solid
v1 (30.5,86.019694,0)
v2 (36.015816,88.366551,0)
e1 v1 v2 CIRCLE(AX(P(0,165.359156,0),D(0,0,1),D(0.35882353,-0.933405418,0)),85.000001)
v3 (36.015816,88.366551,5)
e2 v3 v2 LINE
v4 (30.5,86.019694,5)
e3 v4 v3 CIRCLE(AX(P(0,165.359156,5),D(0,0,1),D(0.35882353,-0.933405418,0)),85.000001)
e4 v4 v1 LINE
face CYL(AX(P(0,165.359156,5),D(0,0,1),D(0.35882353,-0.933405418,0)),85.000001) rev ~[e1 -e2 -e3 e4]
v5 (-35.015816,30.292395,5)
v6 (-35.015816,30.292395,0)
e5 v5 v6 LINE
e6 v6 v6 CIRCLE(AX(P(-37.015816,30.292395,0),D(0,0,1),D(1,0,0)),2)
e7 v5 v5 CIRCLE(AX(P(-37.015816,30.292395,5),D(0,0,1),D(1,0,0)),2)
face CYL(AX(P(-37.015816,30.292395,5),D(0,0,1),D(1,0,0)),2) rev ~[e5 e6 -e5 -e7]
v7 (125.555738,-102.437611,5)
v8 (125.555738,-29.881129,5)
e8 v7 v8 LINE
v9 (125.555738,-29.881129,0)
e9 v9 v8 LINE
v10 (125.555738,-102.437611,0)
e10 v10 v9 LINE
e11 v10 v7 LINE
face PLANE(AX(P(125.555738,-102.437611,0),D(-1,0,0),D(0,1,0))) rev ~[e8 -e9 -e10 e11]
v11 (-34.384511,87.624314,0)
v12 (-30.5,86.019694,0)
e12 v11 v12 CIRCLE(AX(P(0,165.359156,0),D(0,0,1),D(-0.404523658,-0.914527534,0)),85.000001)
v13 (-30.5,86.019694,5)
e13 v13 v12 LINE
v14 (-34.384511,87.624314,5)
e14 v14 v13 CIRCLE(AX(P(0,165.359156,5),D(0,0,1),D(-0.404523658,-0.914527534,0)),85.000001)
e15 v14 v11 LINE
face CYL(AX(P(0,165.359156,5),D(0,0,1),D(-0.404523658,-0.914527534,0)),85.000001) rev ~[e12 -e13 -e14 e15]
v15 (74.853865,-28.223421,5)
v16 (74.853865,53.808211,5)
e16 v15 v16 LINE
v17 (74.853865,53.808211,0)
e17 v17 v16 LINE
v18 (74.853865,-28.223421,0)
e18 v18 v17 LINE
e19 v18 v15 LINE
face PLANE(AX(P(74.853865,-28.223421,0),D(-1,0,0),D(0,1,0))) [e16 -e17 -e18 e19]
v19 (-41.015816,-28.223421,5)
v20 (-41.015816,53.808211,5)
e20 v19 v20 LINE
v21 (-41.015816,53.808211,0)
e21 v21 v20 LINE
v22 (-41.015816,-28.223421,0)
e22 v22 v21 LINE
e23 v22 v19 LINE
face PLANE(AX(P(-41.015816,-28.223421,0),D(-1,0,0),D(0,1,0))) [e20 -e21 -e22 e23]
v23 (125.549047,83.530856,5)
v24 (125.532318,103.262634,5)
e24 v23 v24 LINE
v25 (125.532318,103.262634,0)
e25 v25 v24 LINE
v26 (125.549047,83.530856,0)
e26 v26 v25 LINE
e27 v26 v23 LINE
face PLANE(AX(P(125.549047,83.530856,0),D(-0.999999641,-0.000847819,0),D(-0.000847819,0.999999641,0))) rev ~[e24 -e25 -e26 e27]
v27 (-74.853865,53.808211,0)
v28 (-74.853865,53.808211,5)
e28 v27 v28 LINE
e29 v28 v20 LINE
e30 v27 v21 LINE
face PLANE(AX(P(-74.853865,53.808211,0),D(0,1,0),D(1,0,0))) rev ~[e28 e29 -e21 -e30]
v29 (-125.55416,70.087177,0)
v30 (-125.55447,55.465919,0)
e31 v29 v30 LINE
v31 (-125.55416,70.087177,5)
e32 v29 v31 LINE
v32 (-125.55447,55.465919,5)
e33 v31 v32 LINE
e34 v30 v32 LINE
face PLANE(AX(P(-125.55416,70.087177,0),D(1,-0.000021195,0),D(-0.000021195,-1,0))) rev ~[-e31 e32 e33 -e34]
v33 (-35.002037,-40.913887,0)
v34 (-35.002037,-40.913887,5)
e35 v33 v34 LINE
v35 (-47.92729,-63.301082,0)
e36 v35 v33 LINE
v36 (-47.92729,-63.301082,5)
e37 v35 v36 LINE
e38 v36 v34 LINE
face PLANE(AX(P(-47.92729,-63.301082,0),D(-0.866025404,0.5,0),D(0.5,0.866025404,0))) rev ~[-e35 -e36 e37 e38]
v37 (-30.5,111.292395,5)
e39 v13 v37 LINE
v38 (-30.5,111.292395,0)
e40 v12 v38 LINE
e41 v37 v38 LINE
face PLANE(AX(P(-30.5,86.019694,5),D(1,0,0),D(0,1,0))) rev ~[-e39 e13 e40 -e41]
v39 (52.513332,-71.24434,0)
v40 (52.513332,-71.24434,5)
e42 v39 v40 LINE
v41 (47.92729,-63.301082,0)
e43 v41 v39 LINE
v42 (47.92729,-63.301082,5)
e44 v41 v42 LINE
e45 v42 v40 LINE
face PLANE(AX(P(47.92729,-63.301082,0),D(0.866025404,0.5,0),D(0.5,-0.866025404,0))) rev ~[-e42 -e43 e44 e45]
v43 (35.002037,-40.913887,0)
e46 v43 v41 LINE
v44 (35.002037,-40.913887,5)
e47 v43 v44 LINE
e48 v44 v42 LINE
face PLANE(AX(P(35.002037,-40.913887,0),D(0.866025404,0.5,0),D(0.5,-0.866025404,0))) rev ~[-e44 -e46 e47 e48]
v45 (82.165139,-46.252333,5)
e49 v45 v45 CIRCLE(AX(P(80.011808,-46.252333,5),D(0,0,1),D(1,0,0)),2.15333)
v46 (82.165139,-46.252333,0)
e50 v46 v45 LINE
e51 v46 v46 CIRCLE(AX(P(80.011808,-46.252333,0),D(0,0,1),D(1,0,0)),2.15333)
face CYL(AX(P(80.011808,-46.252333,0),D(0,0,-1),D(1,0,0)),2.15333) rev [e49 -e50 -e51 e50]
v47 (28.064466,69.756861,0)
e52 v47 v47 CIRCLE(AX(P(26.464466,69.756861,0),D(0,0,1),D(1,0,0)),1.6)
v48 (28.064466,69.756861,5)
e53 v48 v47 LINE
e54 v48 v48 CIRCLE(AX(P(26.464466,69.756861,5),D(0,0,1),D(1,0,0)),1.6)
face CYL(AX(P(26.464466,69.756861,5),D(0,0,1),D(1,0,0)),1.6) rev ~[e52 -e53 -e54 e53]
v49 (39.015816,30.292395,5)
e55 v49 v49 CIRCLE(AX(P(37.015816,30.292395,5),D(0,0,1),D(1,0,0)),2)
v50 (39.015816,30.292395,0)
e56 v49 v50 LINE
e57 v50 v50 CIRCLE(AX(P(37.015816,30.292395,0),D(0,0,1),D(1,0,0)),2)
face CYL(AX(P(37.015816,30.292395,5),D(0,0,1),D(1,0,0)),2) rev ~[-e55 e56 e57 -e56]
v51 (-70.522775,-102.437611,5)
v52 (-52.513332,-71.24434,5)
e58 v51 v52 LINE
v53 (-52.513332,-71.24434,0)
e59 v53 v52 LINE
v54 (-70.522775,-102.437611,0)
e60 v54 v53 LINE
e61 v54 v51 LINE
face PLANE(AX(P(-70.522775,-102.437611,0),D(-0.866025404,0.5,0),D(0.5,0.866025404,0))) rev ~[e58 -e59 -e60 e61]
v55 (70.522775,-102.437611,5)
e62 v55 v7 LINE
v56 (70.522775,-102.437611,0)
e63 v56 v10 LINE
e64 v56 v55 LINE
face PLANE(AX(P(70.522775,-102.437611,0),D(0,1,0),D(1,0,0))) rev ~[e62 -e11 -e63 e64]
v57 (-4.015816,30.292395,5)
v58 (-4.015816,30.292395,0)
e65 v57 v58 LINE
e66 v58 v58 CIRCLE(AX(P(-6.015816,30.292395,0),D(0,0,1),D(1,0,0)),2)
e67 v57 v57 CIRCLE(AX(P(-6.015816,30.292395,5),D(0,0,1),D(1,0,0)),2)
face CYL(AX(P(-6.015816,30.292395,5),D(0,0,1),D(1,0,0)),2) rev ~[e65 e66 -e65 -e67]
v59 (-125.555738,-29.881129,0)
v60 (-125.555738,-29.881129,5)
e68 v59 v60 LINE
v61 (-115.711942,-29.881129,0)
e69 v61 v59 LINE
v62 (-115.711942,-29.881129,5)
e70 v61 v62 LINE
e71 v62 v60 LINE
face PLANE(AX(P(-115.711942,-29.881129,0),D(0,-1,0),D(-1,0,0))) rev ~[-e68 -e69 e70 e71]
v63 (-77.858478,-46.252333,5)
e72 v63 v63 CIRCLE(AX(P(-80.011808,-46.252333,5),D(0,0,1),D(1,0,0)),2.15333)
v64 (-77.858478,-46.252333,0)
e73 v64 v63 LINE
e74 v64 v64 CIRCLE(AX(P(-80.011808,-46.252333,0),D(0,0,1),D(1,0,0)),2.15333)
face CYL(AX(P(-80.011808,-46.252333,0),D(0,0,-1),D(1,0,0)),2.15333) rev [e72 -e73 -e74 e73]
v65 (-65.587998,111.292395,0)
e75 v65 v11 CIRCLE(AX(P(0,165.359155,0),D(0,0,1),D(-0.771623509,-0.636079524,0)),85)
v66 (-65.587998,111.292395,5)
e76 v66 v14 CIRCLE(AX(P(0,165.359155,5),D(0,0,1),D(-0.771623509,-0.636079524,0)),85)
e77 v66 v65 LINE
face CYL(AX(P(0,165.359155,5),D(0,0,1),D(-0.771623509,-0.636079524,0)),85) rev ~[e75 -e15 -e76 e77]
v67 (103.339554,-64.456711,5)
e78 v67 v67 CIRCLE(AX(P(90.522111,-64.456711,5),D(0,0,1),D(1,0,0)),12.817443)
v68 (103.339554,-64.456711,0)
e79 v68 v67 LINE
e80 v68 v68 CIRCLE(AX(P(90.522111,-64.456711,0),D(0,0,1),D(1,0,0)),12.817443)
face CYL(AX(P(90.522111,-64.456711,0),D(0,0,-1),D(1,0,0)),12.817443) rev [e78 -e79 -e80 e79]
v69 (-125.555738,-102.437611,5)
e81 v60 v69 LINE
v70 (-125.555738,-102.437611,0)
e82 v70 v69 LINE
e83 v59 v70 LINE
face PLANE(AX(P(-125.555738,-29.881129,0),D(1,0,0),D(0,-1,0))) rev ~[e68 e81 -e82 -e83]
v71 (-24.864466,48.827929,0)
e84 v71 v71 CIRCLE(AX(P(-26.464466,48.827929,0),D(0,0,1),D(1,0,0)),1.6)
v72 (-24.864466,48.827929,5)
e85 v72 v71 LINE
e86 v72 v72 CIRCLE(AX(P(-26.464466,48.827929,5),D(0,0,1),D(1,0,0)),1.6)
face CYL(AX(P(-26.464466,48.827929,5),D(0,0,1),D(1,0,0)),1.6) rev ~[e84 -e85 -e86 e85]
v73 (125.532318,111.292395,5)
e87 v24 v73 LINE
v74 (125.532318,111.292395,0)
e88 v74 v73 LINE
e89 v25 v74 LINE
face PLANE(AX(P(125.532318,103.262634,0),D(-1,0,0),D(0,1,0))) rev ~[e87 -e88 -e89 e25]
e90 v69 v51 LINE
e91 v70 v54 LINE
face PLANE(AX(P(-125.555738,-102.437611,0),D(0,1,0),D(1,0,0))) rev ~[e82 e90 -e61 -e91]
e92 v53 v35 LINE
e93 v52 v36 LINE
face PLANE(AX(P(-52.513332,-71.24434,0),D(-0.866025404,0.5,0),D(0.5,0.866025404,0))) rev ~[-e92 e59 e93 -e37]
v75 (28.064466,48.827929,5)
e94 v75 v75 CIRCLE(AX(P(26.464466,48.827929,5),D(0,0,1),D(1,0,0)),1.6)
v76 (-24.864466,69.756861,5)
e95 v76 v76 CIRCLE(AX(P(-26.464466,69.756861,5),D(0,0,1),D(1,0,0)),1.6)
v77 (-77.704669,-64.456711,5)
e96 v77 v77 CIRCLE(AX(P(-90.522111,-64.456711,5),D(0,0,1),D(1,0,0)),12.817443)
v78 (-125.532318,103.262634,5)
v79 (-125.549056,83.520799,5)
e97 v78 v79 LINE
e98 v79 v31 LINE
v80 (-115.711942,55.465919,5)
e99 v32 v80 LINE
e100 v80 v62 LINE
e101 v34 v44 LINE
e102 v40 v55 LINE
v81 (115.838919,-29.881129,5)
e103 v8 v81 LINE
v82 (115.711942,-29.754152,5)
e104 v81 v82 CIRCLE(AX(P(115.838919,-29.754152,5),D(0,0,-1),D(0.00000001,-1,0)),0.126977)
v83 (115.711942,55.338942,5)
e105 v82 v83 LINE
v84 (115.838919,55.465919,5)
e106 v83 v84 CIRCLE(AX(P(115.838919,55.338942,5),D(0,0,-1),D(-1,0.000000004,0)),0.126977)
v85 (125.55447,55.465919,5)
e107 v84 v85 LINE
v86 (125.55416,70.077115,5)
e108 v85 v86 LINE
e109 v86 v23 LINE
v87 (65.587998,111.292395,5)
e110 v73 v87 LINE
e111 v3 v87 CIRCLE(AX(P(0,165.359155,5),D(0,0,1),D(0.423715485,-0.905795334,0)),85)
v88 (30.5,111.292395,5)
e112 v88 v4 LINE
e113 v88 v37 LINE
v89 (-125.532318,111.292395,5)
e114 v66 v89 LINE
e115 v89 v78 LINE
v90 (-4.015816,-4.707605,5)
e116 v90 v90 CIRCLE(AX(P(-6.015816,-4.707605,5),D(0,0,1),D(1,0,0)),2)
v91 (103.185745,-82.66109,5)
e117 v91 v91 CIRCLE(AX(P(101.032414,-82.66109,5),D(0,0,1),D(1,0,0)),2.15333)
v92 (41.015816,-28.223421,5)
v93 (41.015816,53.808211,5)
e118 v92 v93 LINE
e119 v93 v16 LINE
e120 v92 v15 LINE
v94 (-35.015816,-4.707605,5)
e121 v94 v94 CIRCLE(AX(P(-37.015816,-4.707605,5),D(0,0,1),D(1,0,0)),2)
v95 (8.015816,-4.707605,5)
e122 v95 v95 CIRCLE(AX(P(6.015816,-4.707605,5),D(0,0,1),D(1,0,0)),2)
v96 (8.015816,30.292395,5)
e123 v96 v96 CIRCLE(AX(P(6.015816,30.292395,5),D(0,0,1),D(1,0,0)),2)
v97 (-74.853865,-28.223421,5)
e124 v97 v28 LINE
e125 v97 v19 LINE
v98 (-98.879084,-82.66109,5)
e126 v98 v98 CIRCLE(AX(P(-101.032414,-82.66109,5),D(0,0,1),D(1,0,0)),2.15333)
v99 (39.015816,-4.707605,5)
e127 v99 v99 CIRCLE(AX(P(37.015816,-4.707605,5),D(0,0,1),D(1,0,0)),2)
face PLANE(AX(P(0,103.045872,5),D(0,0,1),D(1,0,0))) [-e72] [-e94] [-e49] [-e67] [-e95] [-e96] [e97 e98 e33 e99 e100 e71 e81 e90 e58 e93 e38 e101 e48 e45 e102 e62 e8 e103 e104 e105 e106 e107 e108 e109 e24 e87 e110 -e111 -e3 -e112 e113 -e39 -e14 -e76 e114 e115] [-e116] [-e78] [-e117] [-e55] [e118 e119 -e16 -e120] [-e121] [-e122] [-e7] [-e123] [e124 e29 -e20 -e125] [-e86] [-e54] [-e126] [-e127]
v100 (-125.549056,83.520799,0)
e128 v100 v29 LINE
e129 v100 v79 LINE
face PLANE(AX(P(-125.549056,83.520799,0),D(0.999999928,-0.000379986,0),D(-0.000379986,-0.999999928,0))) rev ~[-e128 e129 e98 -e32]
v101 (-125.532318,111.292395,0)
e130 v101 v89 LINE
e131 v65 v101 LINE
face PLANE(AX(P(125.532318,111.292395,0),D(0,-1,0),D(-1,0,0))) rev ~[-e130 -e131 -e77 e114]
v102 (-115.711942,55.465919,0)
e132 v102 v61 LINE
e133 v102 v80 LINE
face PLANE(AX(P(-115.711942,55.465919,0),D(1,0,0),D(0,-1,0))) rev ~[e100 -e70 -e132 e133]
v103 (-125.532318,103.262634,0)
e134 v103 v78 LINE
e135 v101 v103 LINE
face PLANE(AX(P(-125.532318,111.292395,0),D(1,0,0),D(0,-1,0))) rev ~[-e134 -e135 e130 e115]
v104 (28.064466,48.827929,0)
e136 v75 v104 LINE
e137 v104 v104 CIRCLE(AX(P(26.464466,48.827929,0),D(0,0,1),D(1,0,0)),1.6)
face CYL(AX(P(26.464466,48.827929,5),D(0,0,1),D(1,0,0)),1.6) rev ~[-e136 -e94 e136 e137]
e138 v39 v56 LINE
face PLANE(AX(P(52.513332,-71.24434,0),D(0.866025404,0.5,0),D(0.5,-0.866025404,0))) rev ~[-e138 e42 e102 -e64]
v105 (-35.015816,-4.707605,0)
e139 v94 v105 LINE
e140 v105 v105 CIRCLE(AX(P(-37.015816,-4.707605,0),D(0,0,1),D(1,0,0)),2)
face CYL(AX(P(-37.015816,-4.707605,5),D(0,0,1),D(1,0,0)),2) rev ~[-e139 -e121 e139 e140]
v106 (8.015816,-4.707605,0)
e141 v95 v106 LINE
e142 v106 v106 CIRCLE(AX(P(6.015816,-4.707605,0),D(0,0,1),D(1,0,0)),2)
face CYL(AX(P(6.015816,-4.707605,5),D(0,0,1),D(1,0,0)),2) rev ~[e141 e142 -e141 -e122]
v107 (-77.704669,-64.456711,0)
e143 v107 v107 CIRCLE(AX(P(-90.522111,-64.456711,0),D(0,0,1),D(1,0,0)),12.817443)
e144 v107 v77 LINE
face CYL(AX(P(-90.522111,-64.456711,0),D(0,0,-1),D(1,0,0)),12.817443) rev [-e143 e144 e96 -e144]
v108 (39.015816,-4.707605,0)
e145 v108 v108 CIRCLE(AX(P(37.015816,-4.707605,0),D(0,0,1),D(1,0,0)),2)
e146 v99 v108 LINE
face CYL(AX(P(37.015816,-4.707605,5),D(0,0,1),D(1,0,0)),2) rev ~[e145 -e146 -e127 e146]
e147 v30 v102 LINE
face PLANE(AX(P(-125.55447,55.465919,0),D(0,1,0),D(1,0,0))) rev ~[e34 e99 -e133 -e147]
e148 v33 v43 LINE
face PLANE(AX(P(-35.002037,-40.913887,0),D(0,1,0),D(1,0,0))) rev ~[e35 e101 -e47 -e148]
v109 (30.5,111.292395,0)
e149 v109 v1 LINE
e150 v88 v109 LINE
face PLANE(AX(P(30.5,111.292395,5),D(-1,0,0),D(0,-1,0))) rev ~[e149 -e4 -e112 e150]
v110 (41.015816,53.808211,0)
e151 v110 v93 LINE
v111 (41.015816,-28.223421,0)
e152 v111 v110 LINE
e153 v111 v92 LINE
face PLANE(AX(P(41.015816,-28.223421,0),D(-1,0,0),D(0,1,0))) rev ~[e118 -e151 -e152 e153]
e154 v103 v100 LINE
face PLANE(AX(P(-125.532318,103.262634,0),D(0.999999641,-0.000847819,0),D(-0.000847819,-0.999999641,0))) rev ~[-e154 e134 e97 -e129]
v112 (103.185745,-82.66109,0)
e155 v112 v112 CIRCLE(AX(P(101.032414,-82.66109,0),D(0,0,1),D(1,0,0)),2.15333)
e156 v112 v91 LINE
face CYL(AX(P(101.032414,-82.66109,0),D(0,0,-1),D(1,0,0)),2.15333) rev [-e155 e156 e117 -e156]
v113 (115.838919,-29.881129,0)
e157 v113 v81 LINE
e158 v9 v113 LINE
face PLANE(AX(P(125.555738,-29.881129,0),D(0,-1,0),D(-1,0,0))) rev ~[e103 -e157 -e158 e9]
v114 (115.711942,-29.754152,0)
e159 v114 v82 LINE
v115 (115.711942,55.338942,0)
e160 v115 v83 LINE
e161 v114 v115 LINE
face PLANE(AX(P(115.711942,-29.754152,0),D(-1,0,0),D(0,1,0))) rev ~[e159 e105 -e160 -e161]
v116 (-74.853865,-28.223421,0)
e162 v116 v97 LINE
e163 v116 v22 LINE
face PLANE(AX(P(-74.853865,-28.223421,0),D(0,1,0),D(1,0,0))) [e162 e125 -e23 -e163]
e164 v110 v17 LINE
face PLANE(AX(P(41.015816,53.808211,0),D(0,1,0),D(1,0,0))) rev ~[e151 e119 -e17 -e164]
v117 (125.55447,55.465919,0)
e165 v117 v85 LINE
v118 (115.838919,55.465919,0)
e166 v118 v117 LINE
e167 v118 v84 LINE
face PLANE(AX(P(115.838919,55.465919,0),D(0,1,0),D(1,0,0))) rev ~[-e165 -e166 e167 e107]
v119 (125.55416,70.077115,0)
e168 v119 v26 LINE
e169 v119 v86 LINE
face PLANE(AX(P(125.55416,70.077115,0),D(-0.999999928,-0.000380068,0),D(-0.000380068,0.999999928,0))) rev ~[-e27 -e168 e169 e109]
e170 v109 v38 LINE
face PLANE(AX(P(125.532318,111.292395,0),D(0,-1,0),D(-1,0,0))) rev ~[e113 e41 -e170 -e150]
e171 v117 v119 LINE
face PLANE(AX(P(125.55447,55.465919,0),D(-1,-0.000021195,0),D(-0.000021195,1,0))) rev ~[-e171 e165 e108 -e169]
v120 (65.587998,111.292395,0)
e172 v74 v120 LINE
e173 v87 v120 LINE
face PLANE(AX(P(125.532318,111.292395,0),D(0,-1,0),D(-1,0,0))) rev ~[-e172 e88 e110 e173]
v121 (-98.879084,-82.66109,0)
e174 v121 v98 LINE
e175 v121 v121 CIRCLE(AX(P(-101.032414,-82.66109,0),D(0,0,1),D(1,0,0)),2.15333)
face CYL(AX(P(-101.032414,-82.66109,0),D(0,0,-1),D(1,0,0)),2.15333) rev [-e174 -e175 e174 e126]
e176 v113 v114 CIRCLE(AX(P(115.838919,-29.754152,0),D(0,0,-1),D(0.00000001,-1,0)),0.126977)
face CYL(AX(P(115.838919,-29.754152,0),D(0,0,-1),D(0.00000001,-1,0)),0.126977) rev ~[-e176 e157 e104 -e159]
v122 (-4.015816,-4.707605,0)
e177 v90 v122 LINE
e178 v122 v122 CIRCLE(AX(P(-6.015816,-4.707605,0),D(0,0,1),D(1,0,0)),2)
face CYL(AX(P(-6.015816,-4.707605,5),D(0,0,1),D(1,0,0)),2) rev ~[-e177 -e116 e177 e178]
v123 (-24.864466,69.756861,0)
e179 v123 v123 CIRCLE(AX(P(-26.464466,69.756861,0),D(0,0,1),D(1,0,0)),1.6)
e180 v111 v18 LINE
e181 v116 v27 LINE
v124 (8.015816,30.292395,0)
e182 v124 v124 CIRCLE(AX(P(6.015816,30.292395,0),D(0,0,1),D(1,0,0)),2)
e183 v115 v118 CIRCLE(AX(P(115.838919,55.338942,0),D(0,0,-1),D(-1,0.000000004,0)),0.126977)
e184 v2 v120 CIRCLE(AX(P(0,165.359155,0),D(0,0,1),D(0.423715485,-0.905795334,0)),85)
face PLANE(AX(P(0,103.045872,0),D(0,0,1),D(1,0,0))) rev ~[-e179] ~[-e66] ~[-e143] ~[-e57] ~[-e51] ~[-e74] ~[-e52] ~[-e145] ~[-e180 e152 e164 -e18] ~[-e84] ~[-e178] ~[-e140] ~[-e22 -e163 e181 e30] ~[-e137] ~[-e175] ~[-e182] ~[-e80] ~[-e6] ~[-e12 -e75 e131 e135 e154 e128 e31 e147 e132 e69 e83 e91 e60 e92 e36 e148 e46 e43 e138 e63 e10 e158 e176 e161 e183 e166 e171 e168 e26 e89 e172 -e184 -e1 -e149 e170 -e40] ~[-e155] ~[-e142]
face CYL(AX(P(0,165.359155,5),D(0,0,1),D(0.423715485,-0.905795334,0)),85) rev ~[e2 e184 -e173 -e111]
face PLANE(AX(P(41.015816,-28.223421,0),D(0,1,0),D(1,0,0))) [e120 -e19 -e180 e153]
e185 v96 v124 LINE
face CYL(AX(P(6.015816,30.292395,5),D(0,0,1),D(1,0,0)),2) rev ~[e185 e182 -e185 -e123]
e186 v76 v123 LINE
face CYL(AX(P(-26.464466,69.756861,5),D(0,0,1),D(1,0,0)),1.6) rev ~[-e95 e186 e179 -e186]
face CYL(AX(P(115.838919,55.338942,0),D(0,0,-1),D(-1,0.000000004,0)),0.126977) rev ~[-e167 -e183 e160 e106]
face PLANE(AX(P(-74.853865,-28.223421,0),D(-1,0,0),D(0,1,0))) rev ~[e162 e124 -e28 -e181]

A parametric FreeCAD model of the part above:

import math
import FreeCAD as App
import Part
import Sketcher
Q = App.Units.Quantity

doc = App.newDocument("Part")
body = doc.addObject("PartDesign::Body", "Body")

# Sketch on XY plane
sketch1 = body.newObject("Sketcher::SketchObject", "Sketch")
sketch1.AttachmentSupport = (doc.getObject("XY_Plane"), [""])
sketch1.MapMode = "FlatFace"
sketch1.addGeometry(Part.LineSegment(App.Vector(125.532318, 103.262634, 0), App.Vector(36.253298, 103.262634, 0)), False)
sketch1.addGeometry(Part.ArcOfCircle(Part.Circle(App.Vector(0, 165.359155, 0), App.Vector(0, 0, 1), 71.904655), math.radians(-120.277311), math.radians(-59.722689)), False)
sketch1.addGeometry(Part.LineSegment(App.Vector(-36.253298, 103.262634, 0), App.Vector(-125.532318, 103.262634, 0)), False)
sketch1.addGeometry(Part.LineSegment(App.Vector(-125.532318, 103.262634, 0), App.Vector(-125.549056, 83.520799, 0)), False)
sketch1.addGeometry(Part.LineSegment(App.Vector(-125.549056, 83.520799, 0), App.Vector(-125.55416, 70.087177, 0)), False)
sketch1.addGeometry(Part.LineSegment(App.Vector(-125.55416, 70.087177, 0), App.Vector(-125.55447, 55.465919, 0)), False)
sketch1.addGeometry(Part.LineSegment(App.Vector(-125.55447, 55.465919, 0), App.Vector(-115.711942, 55.465919, 0)), False)
sketch1.addGeometry(Part.LineSegment(App.Vector(-115.711942, 55.465919, 0), App.Vector(-115.711942, -29.881129, 0)), False)
sketch1.addGeometry(Part.LineSegment(App.Vector(-115.711942, -29.881129, 0), App.Vector(-125.555738, -29.881129, 0)), False)
sketch1.addGeometry(Part.LineSegment(App.Vector(-125.555738, -29.881129, 0), App.Vector(-125.555738, -102.437611, 0)), False)
sketch1.addGeometry(Part.LineSegment(App.Vector(-125.555738, -102.437611, 0), App.Vector(-70.522775, -102.437611, 0)), False)
sketch1.addGeometry(Part.LineSegment(App.Vector(-70.522775, -102.437611, 0), App.Vector(-52.513332, -71.24434, 0)), False)
sketch1.addGeometry(Part.LineSegment(App.Vector(-52.513332, -71.24434, 0), App.Vector(-47.92729, -63.301082, 0)), False)
sketch1.addGeometry(Part.LineSegment(App.Vector(-47.92729, -63.301082, 0), App.Vector(-35.002037, -40.913887, 0)), False)
sketch1.addGeometry(Part.LineSegment(App.Vector(-35.002037, -40.913887, 0), App.Vector(35.002037, -40.913887, 0)), False)
sketch1.addGeometry(Part.LineSegment(App.Vector(35.002037, -40.913887, 0), App.Vector(47.92729, -63.301082, 0)), False)
sketch1.addGeometry(Part.LineSegment(App.Vector(47.92729, -63.301082, 0), App.Vector(52.513332, -71.24434, 0)), False)
sketch1.addGeometry(Part.LineSegment(App.Vector(52.513332, -71.24434, 0), App.Vector(70.522775, -102.437611, 0)), False)
sketch1.addGeometry(Part.LineSegment(App.Vector(70.522775, -102.437611, 0), App.Vector(125.555738, -102.437611, 0)), False)
sketch1.addGeometry(Part.LineSegment(App.Vector(125.555738, -102.437611, 0), App.Vector(125.555738, -29.881129, 0)), False)
sketch1.addGeometry(Part.LineSegment(App.Vector(125.555738, -29.881129, 0), App.Vector(115.838919, -29.881129, 0)), False)
sketch1.addGeometry(Part.ArcOfCircle(Part.Circle(App.Vector(115.838919, -29.754152, 0), App.Vector(0, 0, 1), 0.126977), math.radians(180), math.radians(270)), False)
sketch1.addGeometry(Part.LineSegment(App.Vector(115.711942, -29.754152, 0), App.Vector(115.711942, 55.338942, 0)), False)
sketch1.addGeometry(Part.ArcOfCircle(Part.Circle(App.Vector(115.838919, 55.338942, 0), App.Vector(0, 0, 1), 0.126977), math.radians(90), math.radians(180)), False)
sketch1.addGeometry(Part.LineSegment(App.Vector(115.838919, 55.465919, 0), App.Vector(125.55447, 55.465919, 0)), False)
sketch1.addGeometry(Part.LineSegment(App.Vector(125.55447, 55.465919, 0), App.Vector(125.55416, 70.077115, 0)), False)
sketch1.addGeometry(Part.LineSegment(App.Vector(125.55416, 70.077115, 0), App.Vector(125.549047, 83.530856, 0)), False)
sketch1.addGeometry(Part.LineSegment(App.Vector(125.549047, 83.530856, 0), App.Vector(125.532318, 103.262634, 0)), False)
sketch1.addGeometry(Part.Circle(App.Vector(-101.032414, -82.66109, 0), App.Vector(0, 0, 1), 2.15333), False)
sketch1.addGeometry(Part.Circle(App.Vector(-90.522111, -64.456711, 0), App.Vector(0, 0, 1), 12.817443), False)
sketch1.addGeometry(Part.Circle(App.Vector(-80.011808, -46.252333, 0), App.Vector(0, 0, 1), 2.15333), False)
sketch1.addGeometry(Part.Circle(App.Vector(101.032414, -82.66109, 0), App.Vector(0, 0, 1), 2.15333), False)
sketch1.addGeometry(Part.Circle(App.Vector(90.522111, -64.456711, 0), App.Vector(0, 0, 1), 12.817443), False)
sketch1.addGeometry(Part.Circle(App.Vector(80.011808, -46.252333, 0), App.Vector(0, 0, 1), 2.15333), False)
sketch1.addGeometry(Part.LineSegment(App.Vector(-41.015816, -28.223421, 0), App.Vector(-74.853865, -28.223421, 0)), False)
sketch1.addGeometry(Part.LineSegment(App.Vector(-74.853865, -28.223421, 0), App.Vector(-74.853865, 53.808211, 0)), False)
sketch1.addGeometry(Part.LineSegment(App.Vector(-74.853865, 53.808211, 0), App.Vector(-41.015816, 53.808211, 0)), False)
sketch1.addGeometry(Part.LineSegment(App.Vector(-41.015816, 53.808211, 0), App.Vector(-41.015816, -28.223421, 0)), False)
sketch1.addGeometry(Part.LineSegment(App.Vector(74.853865, -28.223421, 0), App.Vector(41.015816, -28.223421, 0)), False)
sketch1.addGeometry(Part.LineSegment(App.Vector(41.015816, -28.223421, 0), App.Vector(41.015816, 53.808211, 0)), False)
sketch1.addGeometry(Part.LineSegment(App.Vector(41.015816, 53.808211, 0), App.Vector(74.853865, 53.808211, 0)), False)
sketch1.addGeometry(Part.LineSegment(App.Vector(74.853865, 53.808211, 0), App.Vector(74.853865, -28.223421, 0)), False)
sketch1.addConstraint(Sketcher.Constraint("Coincident", 0, 2, 1, 2))
sketch1.addConstraint(Sketcher.Constraint("Coincident", 1, 1, 2, 1))
sketch1.addConstraint(Sketcher.Constraint("Coincident", 2, 2, 3, 1))
sketch1.addConstraint(Sketcher.Constraint("Coincident", 3, 2, 4, 1))
sketch1.addConstraint(Sketcher.Constraint("Coincident", 4, 2, 5, 1))
sketch1.addConstraint(Sketcher.Constraint("Coincident", 5, 2, 6, 1))
sketch1.addConstraint(Sketcher.Constraint("Coincident", 6, 2, 7, 1))
sketch1.addConstraint(Sketcher.Constraint("Coincident", 7, 2, 8, 1))
sketch1.addConstraint(Sketcher.Constraint("Coincident", 8, 2, 9, 1))
sketch1.addConstraint(Sketcher.Constraint("Coincident", 9, 2, 10, 1))
sketch1.addConstraint(Sketcher.Constraint("Coincident", 10, 2, 11, 1))
sketch1.addConstraint(Sketcher.Constraint("Coincident", 11, 2, 12, 1))
sketch1.addConstraint(Sketcher.Constraint("Coincident", 12, 2, 13, 1))
sketch1.addConstraint(Sketcher.Constraint("Coincident", 13, 2, 14, 1))
sketch1.addConstraint(Sketcher.Constraint("Coincident", 14, 2, 15, 1))
sketch1.addConstraint(Sketcher.Constraint("Coincident", 15, 2, 16, 1))
sketch1.addConstraint(Sketcher.Constraint("Coincident", 16, 2, 17, 1))
sketch1.addConstraint(Sketcher.Constraint("Coincident", 17, 2, 18, 1))
sketch1.addConstraint(Sketcher.Constraint("Coincident", 18, 2, 19, 1))
sketch1.addConstraint(Sketcher.Constraint("Coincident", 19, 2, 20, 1))
sketch1.addConstraint(Sketcher.Constraint("Tangent", 20, 2, 21, 2))
sketch1.addConstraint(Sketcher.Constraint("Tangent", 21, 1, 22, 1))
sketch1.addConstraint(Sketcher.Constraint("Tangent", 22, 2, 23, 2))
sketch1.addConstraint(Sketcher.Constraint("Tangent", 23, 1, 24, 1))
sketch1.addConstraint(Sketcher.Constraint("Coincident", 24, 2, 25, 1))
sketch1.addConstraint(Sketcher.Constraint("Coincident", 25, 2, 26, 1))
sketch1.addConstraint(Sketcher.Constraint("Coincident", 26, 2, 27, 1))
sketch1.addConstraint(Sketcher.Constraint("Coincident", 27, 2, 0, 1))
sketch1.addConstraint(Sketcher.Constraint("Coincident", 34, 2, 35, 1))
sketch1.addConstraint(Sketcher.Constraint("Coincident", 35, 2, 36, 1))
sketch1.addConstraint(Sketcher.Constraint("Coincident", 36, 2, 37, 1))
sketch1.addConstraint(Sketcher.Constraint("Coincident", 37, 2, 34, 1))
sketch1.addConstraint(Sketcher.Constraint("Coincident", 38, 2, 39, 1))
sketch1.addConstraint(Sketcher.Constraint("Coincident", 39, 2, 40, 1))
sketch1.addConstraint(Sketcher.Constraint("Coincident", 40, 2, 41, 1))
sketch1.addConstraint(Sketcher.Constraint("Coincident", 41, 2, 38, 1))
sketch1.addConstraint(Sketcher.Constraint("Horizontal", 0))
sketch1.addConstraint(Sketcher.Constraint("Horizontal", 2))
sketch1.addConstraint(Sketcher.Constraint("Horizontal", 6))
sketch1.addConstraint(Sketcher.Constraint("Vertical", 7))
sketch1.addConstraint(Sketcher.Constraint("Horizontal", 8))
sketch1.addConstraint(Sketcher.Constraint("Vertical", 9))
sketch1.addConstraint(Sketcher.Constraint("Horizontal", 10))
sketch1.addConstraint(Sketcher.Constraint("Horizontal", 14))
sketch1.addConstraint(Sketcher.Constraint("Horizontal", 18))
sketch1.addConstraint(Sketcher.Constraint("Vertical", 19))
sketch1.addConstraint(Sketcher.Constraint("Horizontal", 20))
sketch1.addConstraint(Sketcher.Constraint("Vertical", 22))
sketch1.addConstraint(Sketcher.Constraint("Horizontal", 24))
sketch1.addConstraint(Sketcher.Constraint("Horizontal", 34))
sketch1.addConstraint(Sketcher.Constraint("Vertical", 35))
sketch1.addConstraint(Sketcher.Constraint("Horizontal", 36))
sketch1.addConstraint(Sketcher.Constraint("Vertical", 37))
sketch1.addConstraint(Sketcher.Constraint("Horizontal", 38))
sketch1.addConstraint(Sketcher.Constraint("Vertical", 39))
sketch1.addConstraint(Sketcher.Constraint("Horizontal", 40))
sketch1.addConstraint(Sketcher.Constraint("Vertical", 41))
sketch1.addConstraint(Sketcher.Constraint("Equal", 21, 23))
sketch1.addConstraint(Sketcher.Constraint("Equal", 28, 30))
sketch1.addConstraint(Sketcher.Constraint("Equal", 30, 31))
sketch1.addConstraint(Sketcher.Constraint("Equal", 29, 32))
sketch1.addConstraint(Sketcher.Constraint("Equal", 31, 33))
sketch1.addConstraint(Sketcher.Constraint("Symmetric", 28, 3, 31, 3, -2))
sketch1.addConstraint(Sketcher.Constraint("Symmetric", 29, 3, 32, 3, -2))
sketch1.addConstraint(Sketcher.Constraint("Symmetric", 30, 3, 33, 3, -2))
sketch1.addConstraint(Sketcher.Constraint("Symmetric", 0, 2, 1, 1, -2))
sketch1.addConstraint(Sketcher.Constraint("Symmetric", 12, 2, 15, 2, -2))
sketch1.addConstraint(Sketcher.Constraint("Symmetric", 11, 2, 16, 2, -2))
sketch1.addConstraint(Sketcher.Constraint("Symmetric", 10, 2, 17, 2, -2))
sketch1.addConstraint(Sketcher.Constraint("Symmetric", 8, 2, 19, 2, -2))
sketch1.addConstraint(Sketcher.Constraint("Symmetric", 5, 2, 24, 2, -2))
sketch1.addConstraint(Sketcher.Constraint("Symmetric", 37, 2, 38, 2, -2))
sketch1.addConstraint(Sketcher.Constraint("Symmetric", 35, 2, 40, 2, -2))
sketch1.addConstraint(Sketcher.Constraint("Parallel", 11, 12))
sketch1.addConstraint(Sketcher.Constraint("Parallel", 12, 13))
sketch1.addConstraint(Sketcher.Constraint("Parallel", 15, 16))
sketch1.addConstraint(Sketcher.Constraint("Equal", 0, 2))
sketch1.addConstraint(Sketcher.Constraint("Angle", 11, Q("60 deg")))
sketch1.addConstraint(Sketcher.Constraint("Diameter", 28, 4.306661))
sketch1.addConstraint(Sketcher.Constraint("Diameter", 29, 25.634885))
sketch1.addConstraint(Sketcher.Constraint("Radius", 1, 71.904655))
sketch1.addConstraint(Sketcher.Constraint("Radius", 21, 0.126977))
sketch1.addConstraint(Sketcher.Constraint("DistanceX", 0, 2, 0, 1, 89.27902))
sketch1.addConstraint(Sketcher.Constraint("DistanceX", 6, 1, 6, 2, 9.842528))
sketch1.addConstraint(Sketcher.Constraint("DistanceX", 20, 2, 20, 1, 9.716819))
sketch1.addConstraint(Sketcher.Constraint("DistanceX", 24, 1, 24, 2, 9.715551))
sketch1.addConstraint(Sketcher.Constraint("DistanceX", 34, 2, 34, 1, 33.838048))
sketch1.addConstraint(Sketcher.Constraint("DistanceY", 7, 2, 7, 1, 85.347048))
sketch1.addConstraint(Sketcher.Constraint("DistanceY", 9, 2, 9, 1, 72.556482))
sketch1.addConstraint(Sketcher.Constraint("DistanceY", -1, 1, 3, 2, 83.520799))
sketch1.addConstraint(Sketcher.Constraint("DistanceY", 9, 2, 29, 3, 37.9809))
sketch1.addConstraint(Sketcher.Constraint("DistanceX", 23, 1, 27, 2, 9.693399))
sketch1.addConstraint(Sketcher.Constraint("Distance", 3, 19.741842))
sketch1.addConstraint(Sketcher.Constraint("DistanceX", 10, 1, 10, 2, 55.032962))
sketch1.addConstraint(Sketcher.Constraint("DistanceX", 14, 1, 14, 2, 70.004073))
sketch1.addConstraint(Sketcher.Constraint("DistanceY", 35, 1, 35, 2, 82.031632))
sketch1.addConstraint(Sketcher.Constraint("DistanceX", -1, 1, 21, 3, 115.838919))
sketch1.addConstraint(Sketcher.Constraint("DistanceY", 21, 3, -1, 1, 29.754152))
sketch1.addConstraint(Sketcher.Constraint("DistanceY", 28, 3, -1, 1, 82.66109))
sketch1.addConstraint(Sketcher.Constraint("DistanceX", 29, 3, -1, 1, 90.522111))
sketch1.addConstraint(Sketcher.Constraint("DistanceX", 30, 3, -1, 1, 80.011808))
sketch1.addConstraint(Sketcher.Constraint("DistanceX", 4, 2, -1, 1, 125.55416))
sketch1.addConstraint(Sketcher.Constraint("DistanceY", 11, 2, -1, 1, 71.24434))
sketch1.addConstraint(Sketcher.Constraint("DistanceX", 12, 2, -1, 1, 47.92729))
sketch1.addConstraint(Sketcher.Constraint("DistanceX", -1, 1, 25, 2, 125.55416))
sketch1.addConstraint(Sketcher.Constraint("DistanceY", 34, 2, -1, 1, 28.223421))
sketch1.addConstraint(Sketcher.Constraint("DistanceY", 29, 3, 30, 3, 18.204379))
sketch1.addConstraint(Sketcher.Constraint("DistanceX", 28, 3, 31, 3, 202.064828))
sketch1.addConstraint(Sketcher.Constraint("DistanceY", 30, 3, 4, 2, 116.33951))
sketch1.addConstraint(Sketcher.Constraint("DistanceY", 25, 2, 0, 2, 33.185519))
sketch1.addConstraint(Sketcher.Constraint("DistanceY", 25, 2, 26, 2, 13.453741))
sketch1.addConstraint(Sketcher.Constraint("DistanceX", 23, 1, 26, 2, 9.710128))
sketch1.addConstraint(Sketcher.Constraint("DistanceX", 3, 2, 35, 2, 50.695191))
sketch1.addConstraint(Sketcher.Constraint("DistanceX", 36, 2, 1, 1, 4.762518))
pad1 = body.newObject("PartDesign::Pad", "Pad")
pad1.Profile = sketch1
pad1.Length = 5

# Sketch on XY plane
sketch2 = body.newObject("Sketcher::SketchObject", "Sketch001")
sketch2.AttachmentSupport = (doc.getObject("XY_Plane"), [""])
sketch2.MapMode = "FlatFace"
sketch2.AttachmentOffset = App.Placement(App.Vector(0, 0, 5), App.Rotation())
sketch2.addGeometry(Part.Circle(App.Vector(0, 135.292395, 0), App.Vector(0, 0, 1), 62), False)
sketch2.addConstraint(Sketcher.Constraint("PointOnObject", 0, 3, -2))
sketch2.addConstraint(Sketcher.Constraint("Diameter", 0, 124.0))
sketch2.addConstraint(Sketcher.Constraint("DistanceY", -1, 1, 0, 3, 135.292395))
pocket1 = body.newObject("PartDesign::Pocket", "Pocket")
pocket1.Profile = sketch2
pocket1.Length = 5

# Sketch on XY plane
sketch3 = body.newObject("Sketcher::SketchObject", "Sketch002")
sketch3.AttachmentSupport = (doc.getObject("XY_Plane"), [""])
sketch3.MapMode = "FlatFace"
sketch3.AttachmentOffset = App.Placement(App.Vector(0, 0, 5), App.Rotation())
sketch3.addGeometry(Part.Circle(App.Vector(26.464466, 69.756861, 0), App.Vector(0, 0, 1), 1.6), False)
sketch3.addGeometry(Part.Circle(App.Vector(26.464466, 48.827929, 0), App.Vector(0, 0, 1), 1.6), False)
sketch3.addGeometry(Part.Circle(App.Vector(-26.464466, 69.756861, 0), App.Vector(0, 0, 1), 1.6), False)
sketch3.addGeometry(Part.Circle(App.Vector(-26.464466, 48.827929, 0), App.Vector(0, 0, 1), 1.6), False)
sketch3.addGeometry(Part.Circle(App.Vector(-37.015816, 30.292395, 0), App.Vector(0, 0, 1), 2), False)
sketch3.addGeometry(Part.Circle(App.Vector(-37.015816, -4.707605, 0), App.Vector(0, 0, 1), 2), False)
sketch3.addGeometry(Part.Circle(App.Vector(-6.015816, -4.707605, 0), App.Vector(0, 0, 1), 2), False)
sketch3.addGeometry(Part.Circle(App.Vector(-6.015816, 30.292395, 0), App.Vector(0, 0, 1), 2), False)
sketch3.addGeometry(Part.Circle(App.Vector(6.015816, 30.292395, 0), App.Vector(0, 0, 1), 2), False)
sketch3.addGeometry(Part.Circle(App.Vector(6.015816, -4.707605, 0), App.Vector(0, 0, 1), 2), False)
sketch3.addGeometry(Part.Circle(App.Vector(37.015816, 30.292395, 0), App.Vector(0, 0, 1), 2), False)
sketch3.addGeometry(Part.Circle(App.Vector(37.015816, -4.707605, 0), App.Vector(0, 0, 1), 2), False)
sketch3.addConstraint(Sketcher.Constraint("Equal", 0, 1))
sketch3.addConstraint(Sketcher.Constraint("Equal", 1, 2))
sketch3.addConstraint(Sketcher.Constraint("Equal", 2, 3))
sketch3.addConstraint(Sketcher.Constraint("Equal", 4, 5))
sketch3.addConstraint(Sketcher.Constraint("Equal", 5, 6))
sketch3.addConstraint(Sketcher.Constraint("Equal", 6, 7))
sketch3.addConstraint(Sketcher.Constraint("Equal", 7, 8))
sketch3.addConstraint(Sketcher.Constraint("Equal", 8, 9))
sketch3.addConstraint(Sketcher.Constraint("Equal", 9, 10))
sketch3.addConstraint(Sketcher.Constraint("Equal", 10, 11))
sketch3.addConstraint(Sketcher.Constraint("Symmetric", 0, 3, 2, 3, -2))
sketch3.addConstraint(Sketcher.Constraint("Symmetric", 1, 3, 3, 3, -2))
sketch3.addConstraint(Sketcher.Constraint("Symmetric", 7, 3, 8, 3, -2))
sketch3.addConstraint(Sketcher.Constraint("Symmetric", 6, 3, 9, 3, -2))
sketch3.addConstraint(Sketcher.Constraint("Symmetric", 4, 3, 10, 3, -2))
sketch3.addConstraint(Sketcher.Constraint("Symmetric", 5, 3, 11, 3, -2))
sketch3.addConstraint(Sketcher.Constraint("Horizontal", 5, 3, 6, 3))
sketch3.addConstraint(Sketcher.Constraint("Horizontal", 4, 3, 7, 3))
sketch3.addConstraint(Sketcher.Constraint("Vertical", 0, 3, 1, 3))
sketch3.addConstraint(Sketcher.Constraint("Vertical", 4, 3, 5, 3))
sketch3.addConstraint(Sketcher.Constraint("Vertical", 6, 3, 7, 3))
sketch3.addConstraint(Sketcher.Constraint("Diameter", 4, 4.0))
sketch3.addConstraint(Sketcher.Constraint("Diameter", 0, 3.2))
sketch3.addConstraint(Sketcher.Constraint("DistanceY", 5, 3, 4, 3, 35.0))
sketch3.addConstraint(Sketcher.Constraint("DistanceX", 5, 3, 6, 3, 31.0))
sketch3.addConstraint(Sketcher.Constraint("DistanceY", -1, 1, 0, 3, 69.756861))
sketch3.addConstraint(Sketcher.Constraint("DistanceY", -1, 1, 1, 3, 48.827929))
sketch3.addConstraint(Sketcher.Constraint("DistanceX", 4, 3, 3, 3, 10.55135))
sketch3.addConstraint(Sketcher.Constraint("DistanceX", -1, 1, 0, 3, 26.464466))
sketch3.addConstraint(Sketcher.Constraint("DistanceY", -1, 1, 4, 3, 30.292395))
pocket2 = body.newObject("PartDesign::Pocket", "Pocket001")
pocket2.Profile = sketch3
pocket2.Length = 10

# Sketch on XY plane
sketch4 = body.newObject("Sketcher::SketchObject", "Sketch003")
sketch4.AttachmentSupport = (doc.getObject("XY_Plane"), [""])
sketch4.MapMode = "FlatFace"
sketch4.addGeometry(Part.LineSegment(App.Vector(125.532318, 111.292395, 0), App.Vector(125.532318, 103.262634, 0)), False)
sketch4.addGeometry(Part.LineSegment(App.Vector(125.532318, 103.262634, 0), App.Vector(53.085727, 103.262634, 0)), False)
sketch4.addGeometry(Part.ArcOfCircle(Part.Circle(App.Vector(0, 135.292395, 0), App.Vector(0, 0, 1), 62), math.radians(-148.894933), math.radians(-31.105067)), False)
sketch4.addGeometry(Part.LineSegment(App.Vector(-53.085727, 103.262634, 0), App.Vector(-125.532318, 103.262634, 0)), False)
sketch4.addGeometry(Part.LineSegment(App.Vector(-125.532318, 103.262634, 0), App.Vector(-125.532318, 111.292395, 0)), False)
sketch4.addGeometry(Part.LineSegment(App.Vector(-125.532318, 111.292395, 0), App.Vector(125.532318, 111.292395, 0)), False)
sketch4.addConstraint(Sketcher.Constraint("Coincident", 0, 2, 1, 1))
sketch4.addConstraint(Sketcher.Constraint("Coincident", 1, 2, 2, 2))
sketch4.addConstraint(Sketcher.Constraint("Coincident", 2, 1, 3, 1))
sketch4.addConstraint(Sketcher.Constraint("Coincident", 3, 2, 4, 1))
sketch4.addConstraint(Sketcher.Constraint("Coincident", 4, 2, 5, 1))
sketch4.addConstraint(Sketcher.Constraint("Coincident", 5, 2, 0, 1))
sketch4.addConstraint(Sketcher.Constraint("Vertical", 0))
sketch4.addConstraint(Sketcher.Constraint("Horizontal", 1))
sketch4.addConstraint(Sketcher.Constraint("Horizontal", 3))
sketch4.addConstraint(Sketcher.Constraint("Vertical", 4))
sketch4.addConstraint(Sketcher.Constraint("Horizontal", 5))
sketch4.addConstraint(Sketcher.Constraint("Symmetric", 1, 2, 2, 1, -2))
sketch4.addConstraint(Sketcher.Constraint("Equal", 1, 3))
sketch4.addConstraint(Sketcher.Constraint("Radius", 2, 62.0))
sketch4.addConstraint(Sketcher.Constraint("DistanceY", 4, 2, 2, 3, 24.0))
sketch4.addConstraint(Sketcher.Constraint("DistanceX", 1, 2, 1, 1, 72.446591))
sketch4.addConstraint(Sketcher.Constraint("DistanceY", 0, 2, 0, 1, 8.029761))
sketch4.addConstraint(Sketcher.Constraint("DistanceY", -1, 1, 2, 3, 135.292395))
pad2 = body.newObject("PartDesign::Pad", "Pad001")
pad2.Profile = sketch4
pad2.Length = 5

# Sketch on XY plane
sketch5 = body.newObject("Sketcher::SketchObject", "Sketch004")
sketch5.AttachmentSupport = (doc.getObject("XY_Plane"), [""])
sketch5.MapMode = "FlatFace"
sketch5.AttachmentOffset = App.Placement(App.Vector(0, 0, 5), App.Rotation())
sketch5.addGeometry(Part.LineSegment(App.Vector(-30.5, 111.292395, 0), App.Vector(-65.587998, 111.292395, 0)), False)
sketch5.addGeometry(Part.ArcOfCircle(Part.Circle(App.Vector(0, 165.359155, 0), App.Vector(0, 0, 1), 85), math.radians(-140.499903), math.radians(-113.861281)), False)
sketch5.addGeometry(Part.ArcOfCircle(Part.Circle(App.Vector(0, 165.359156, 0), App.Vector(0, 0, 1), 85.000001), math.radians(-113.861281), math.radians(-111.027963)), False)
sketch5.addGeometry(Part.LineSegment(App.Vector(-30.5, 86.019694, 0), App.Vector(-30.5, 111.292395, 0)), False)
sketch5.addGeometry(Part.LineSegment(App.Vector(65.587998, 111.292395, 0), App.Vector(30.5, 111.292395, 0)), False)
sketch5.addGeometry(Part.LineSegment(App.Vector(30.5, 111.292395, 0), App.Vector(30.5, 86.019694, 0)), False)
sketch5.addGeometry(Part.ArcOfCircle(Part.Circle(App.Vector(0, 165.359156, 0), App.Vector(0, 0, 1), 85.000001), math.radians(-68.972037), math.radians(-64.930615)), False)
sketch5.addGeometry(Part.ArcOfCircle(Part.Circle(App.Vector(0, 165.359155, 0), App.Vector(0, 0, 1), 85), math.radians(-64.930615), math.radians(-39.500097)), False)
sketch5.addConstraint(Sketcher.Constraint("Coincident", 0, 2, 1, 1))
sketch5.addConstraint(Sketcher.Constraint("Tangent", 1, 2, 2, 1))
sketch5.addConstraint(Sketcher.Constraint("Coincident", 2, 2, 3, 1))
sketch5.addConstraint(Sketcher.Constraint("Coincident", 3, 2, 0, 1))
sketch5.addConstraint(Sketcher.Constraint("Coincident", 4, 2, 5, 1))
sketch5.addConstraint(Sketcher.Constraint("Coincident", 5, 2, 6, 1))
sketch5.addConstraint(Sketcher.Constraint("Tangent", 6, 2, 7, 1))
sketch5.addConstraint(Sketcher.Constraint("Coincident", 7, 2, 4, 1))
sketch5.addConstraint(Sketcher.Constraint("Horizontal", 0))
sketch5.addConstraint(Sketcher.Constraint("Vertical", 3))
sketch5.addConstraint(Sketcher.Constraint("Horizontal", 4))
sketch5.addConstraint(Sketcher.Constraint("Vertical", 5))
sketch5.addConstraint(Sketcher.Constraint("Coincident", 6, 3, 1, 3))
sketch5.addConstraint(Sketcher.Constraint("Equal", 1, 2))
sketch5.addConstraint(Sketcher.Constraint("Equal", 2, 6))
sketch5.addConstraint(Sketcher.Constraint("Equal", 6, 7))
sketch5.addConstraint(Sketcher.Constraint("Symmetric", 3, 2, 4, 2, -2))
sketch5.addConstraint(Sketcher.Constraint("PointOnObject", 1, 3, -2))
sketch5.addConstraint(Sketcher.Constraint("Radius", 1, 85.0))
sketch5.addConstraint(Sketcher.Constraint("DistanceX", 3, 2, 4, 2, 61.0))
sketch5.addConstraint(Sketcher.Constraint("DistanceX", 0, 2, 0, 1, 35.087998))
sketch5.addConstraint(Sketcher.Constraint("DistanceX", 1, 2, -1, 1, 34.384511))
sketch5.addConstraint(Sketcher.Constraint("DistanceY", -1, 1, 6, 2, 88.366551))
sketch5.addConstraint(Sketcher.Constraint("DistanceY", -1, 1, 1, 3, 165.359155))
pocket3 = body.newObject("PartDesign::Pocket", "Pocket002")
pocket3.Profile = sketch5
pocket3.Length = 30

doc.recompute()
